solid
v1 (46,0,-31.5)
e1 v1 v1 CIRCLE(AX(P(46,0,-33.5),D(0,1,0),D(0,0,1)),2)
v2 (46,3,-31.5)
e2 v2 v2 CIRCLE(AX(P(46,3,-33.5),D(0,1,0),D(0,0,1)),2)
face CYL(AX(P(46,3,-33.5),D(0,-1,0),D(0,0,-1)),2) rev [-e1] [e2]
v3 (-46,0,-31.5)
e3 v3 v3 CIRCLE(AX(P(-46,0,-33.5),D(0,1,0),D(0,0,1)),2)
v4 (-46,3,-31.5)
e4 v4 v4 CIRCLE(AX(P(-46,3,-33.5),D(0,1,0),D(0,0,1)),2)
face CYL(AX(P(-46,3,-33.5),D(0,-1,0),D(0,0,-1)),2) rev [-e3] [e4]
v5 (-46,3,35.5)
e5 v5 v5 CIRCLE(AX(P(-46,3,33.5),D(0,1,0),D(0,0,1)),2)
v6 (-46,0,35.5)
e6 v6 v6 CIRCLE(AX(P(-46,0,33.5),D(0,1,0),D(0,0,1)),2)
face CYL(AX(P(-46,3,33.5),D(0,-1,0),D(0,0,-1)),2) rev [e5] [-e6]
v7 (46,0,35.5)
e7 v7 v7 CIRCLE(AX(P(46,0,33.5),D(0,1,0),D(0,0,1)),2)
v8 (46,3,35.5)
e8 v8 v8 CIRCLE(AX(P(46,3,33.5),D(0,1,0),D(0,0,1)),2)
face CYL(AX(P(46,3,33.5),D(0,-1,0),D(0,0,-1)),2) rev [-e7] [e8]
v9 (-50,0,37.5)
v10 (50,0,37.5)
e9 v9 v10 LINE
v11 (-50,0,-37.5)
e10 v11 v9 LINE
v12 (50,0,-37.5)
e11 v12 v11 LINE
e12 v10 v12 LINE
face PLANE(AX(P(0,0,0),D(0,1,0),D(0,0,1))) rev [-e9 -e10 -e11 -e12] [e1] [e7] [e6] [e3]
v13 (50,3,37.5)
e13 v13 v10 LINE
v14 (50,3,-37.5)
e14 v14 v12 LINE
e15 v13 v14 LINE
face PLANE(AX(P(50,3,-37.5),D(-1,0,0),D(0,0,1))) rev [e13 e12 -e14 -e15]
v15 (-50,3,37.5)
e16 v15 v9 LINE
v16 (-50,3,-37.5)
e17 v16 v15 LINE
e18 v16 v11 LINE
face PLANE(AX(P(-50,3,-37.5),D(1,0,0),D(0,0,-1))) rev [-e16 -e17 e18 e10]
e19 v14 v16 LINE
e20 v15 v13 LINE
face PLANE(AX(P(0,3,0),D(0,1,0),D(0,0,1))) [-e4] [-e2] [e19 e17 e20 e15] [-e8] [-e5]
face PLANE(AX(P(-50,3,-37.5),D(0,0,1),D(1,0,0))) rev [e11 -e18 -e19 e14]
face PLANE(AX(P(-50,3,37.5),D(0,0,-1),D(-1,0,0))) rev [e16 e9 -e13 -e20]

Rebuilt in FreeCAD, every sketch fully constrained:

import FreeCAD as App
import Part
import Sketcher


def add_polygon(sketch, points):
    """Adds a closed chain of lines whose ends are joined by coincident constraints."""
    first, n = sketch.GeometryCount, len(points)
    for a, b in zip(points, points[1:] + points[:1]):
        sketch.addGeometry(Part.LineSegment(App.Vector(*a, 0), App.Vector(*b, 0)), False)
    for i in range(n):
        sketch.addConstraint(Sketcher.Constraint("Coincident", first + i, 2, first + (i + 1) % n, 1))

doc = App.newDocument("Part")
body = doc.addObject("PartDesign::Body", "Body")

sketch1 = doc.addObject("Sketcher::SketchObject", "Sketch")
body.addObject(sketch1)
sketch1.AttachmentSupport = (doc.XZ_Plane, [""])
sketch1.MapMode = "FlatFace"
add_polygon(sketch1, [(-50, -37.5), (-50, 37.5), (50, 37.5), (50, -37.5)])
sketch1.addGeometry(Part.Circle(App.Vector(-46, 33.5, 0), App.Vector(0, 0, 1), 2), False)
sketch1.addGeometry(Part.Circle(App.Vector(46, 33.5, 0), App.Vector(0, 0, 1), 2), False)
sketch1.addGeometry(Part.Circle(App.Vector(-46, -33.5, 0), App.Vector(0, 0, 1), 2), False)
sketch1.addGeometry(Part.Circle(App.Vector(46, -33.5, 0), App.Vector(0, 0, 1), 2), False)
sketch1.addConstraint([
    Sketcher.Constraint("Vertical", 0),
    Sketcher.Constraint("Horizontal", 1),
    Sketcher.Constraint("Vertical", 2),
    Sketcher.Constraint("Horizontal", 3),
    Sketcher.Constraint("Equal", 4, 5),
    Sketcher.Constraint("Equal", 5, 6),
    Sketcher.Constraint("Equal", 6, 7),
    Sketcher.Constraint("Symmetric", 5, 3, 6, 3, -1, 1),
    Sketcher.Constraint("Symmetric", 4, 3, 7, 3, -1, 1),
    Sketcher.Constraint("Symmetric", 0, 2, 2, 2, -1, 1),
    Sketcher.Constraint("Symmetric", 4, 3, 5, 3, -2),
    Sketcher.Constraint("Diameter", 4, 4.0),
    Sketcher.Constraint("DistanceX", 1, 1, 1, 2, 100.0),
    Sketcher.Constraint("DistanceY", 0, 1, 0, 2, 75.0),
    Sketcher.Constraint("DistanceX", 4, 3, -1, 1, 46.0),
    Sketcher.Constraint("DistanceY", 6, 3, 4, 3, 67.0),
])
pad1 = doc.addObject("PartDesign::Pad", "Pad")
body.addObject(pad1)
pad1.Profile = sketch1
pad1.Length = 3
pad1.Reversed = True

doc.recompute()
